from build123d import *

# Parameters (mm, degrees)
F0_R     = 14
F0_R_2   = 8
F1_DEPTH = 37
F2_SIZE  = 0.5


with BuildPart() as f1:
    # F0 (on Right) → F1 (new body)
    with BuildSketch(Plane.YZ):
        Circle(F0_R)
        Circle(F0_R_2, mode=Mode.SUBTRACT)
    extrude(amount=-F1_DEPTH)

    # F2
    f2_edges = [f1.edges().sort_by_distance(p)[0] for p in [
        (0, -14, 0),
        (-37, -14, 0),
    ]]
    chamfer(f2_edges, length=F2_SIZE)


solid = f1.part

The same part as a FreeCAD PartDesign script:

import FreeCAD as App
import Part
import Sketcher
from FreeCAD import Vector


def edges_at(feature, points):
    """Names of the edges that pass closest to the given points."""
    edges = feature.Shape.Edges
    near = lambda p: min(range(len(edges)), key=lambda i: edges[i].distToShape(Part.Vertex(*p))[0])
    return sorted({f"Edge{near(p) + 1}" for p in points})

doc = App.newDocument("Part")
body = doc.addObject("PartDesign::Body", "Body")

# Sketch on YZ plane
sketch1 = body.newObject("Sketcher::SketchObject", "Sketch")
sketch1.AttachmentSupport = (doc.getObject("YZ_Plane"), [""])
sketch1.MapMode = "FlatFace"
sketch1.addGeometry([
    Part.Circle(Vector(0, 0, 0), Vector(0, 0, 1), 14),
    Part.Circle(Vector(0, 0, 0), Vector(0, 0, 1), 8),
], False)
sketch1.addConstraint([
    Sketcher.Constraint("Coincident", 0, 3, -1, 1),
    Sketcher.Constraint("Coincident", 1, 3, -1, 1),
    Sketcher.Constraint("Diameter", 0, 28.0),
    Sketcher.Constraint("Diameter", 1, 16.0),
])
pad1 = body.newObject("PartDesign::Pad", "Pad")
pad1.Profile = sketch1
pad1.Length = 37
pad1.Reversed = True
doc.recompute()

chamfer = body.newObject("PartDesign::Chamfer", "Chamfer")
chamfer.Base = (pad1, edges_at(pad1, [(0, -14, 0), (-37, -14, 0)]))
chamfer.Size = 0.5

doc.recompute()
